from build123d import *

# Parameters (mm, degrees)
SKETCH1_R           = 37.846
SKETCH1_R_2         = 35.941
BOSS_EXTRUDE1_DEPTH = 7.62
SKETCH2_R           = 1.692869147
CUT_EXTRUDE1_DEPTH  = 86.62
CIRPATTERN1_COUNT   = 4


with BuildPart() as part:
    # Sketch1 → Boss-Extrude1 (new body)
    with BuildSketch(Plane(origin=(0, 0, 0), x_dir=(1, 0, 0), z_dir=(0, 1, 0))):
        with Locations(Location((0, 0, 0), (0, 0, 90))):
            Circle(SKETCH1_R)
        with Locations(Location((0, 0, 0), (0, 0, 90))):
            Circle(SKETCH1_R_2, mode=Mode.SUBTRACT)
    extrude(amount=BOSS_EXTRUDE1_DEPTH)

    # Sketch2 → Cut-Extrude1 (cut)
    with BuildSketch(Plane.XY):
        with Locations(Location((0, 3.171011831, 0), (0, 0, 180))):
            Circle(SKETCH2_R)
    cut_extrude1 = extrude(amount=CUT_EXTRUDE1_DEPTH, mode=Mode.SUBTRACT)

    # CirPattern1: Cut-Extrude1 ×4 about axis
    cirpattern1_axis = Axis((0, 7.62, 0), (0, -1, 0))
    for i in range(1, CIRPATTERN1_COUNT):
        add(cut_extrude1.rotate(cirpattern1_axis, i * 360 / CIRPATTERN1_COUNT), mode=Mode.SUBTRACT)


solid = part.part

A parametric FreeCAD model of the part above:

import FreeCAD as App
import Part
import Sketcher

V = App.Vector
Q = App.Units.Quantity

doc = App.newDocument("Part")
body = doc.addObject("PartDesign::Body", "Body")

# Sketch on XZ plane
sketch1 = doc.addObject("Sketcher::SketchObject", "Sketch")
body.addObject(sketch1)
sketch1.AttachmentSupport = (doc.XZ_Plane, [""])
sketch1.MapMode = "FlatFace"
sketch1.addGeometry([
    Part.Circle(V(0, 0, 0), V(0, 0, 1), 38),
    Part.Circle(V(0, 0, 0), V(0, 0, 1), 36),
], False)
sketch1.addConstraint([
    Sketcher.Constraint("Coincident", 0, 3, -1, 1),
    Sketcher.Constraint("Coincident", 1, 3, -1, 1),
    Sketcher.Constraint("Diameter", 0, Q("2.98 in")),
    Sketcher.Constraint("Diameter", 1, Q("2.83 in")),
])
pad1 = doc.addObject("PartDesign::Pad", "Pad")
body.addObject(pad1)
pad1.Profile = sketch1
pad1.Length = Q("0.3 in")
pad1.Reversed = True

# Sketch on XY plane
sketch2 = doc.addObject("Sketcher::SketchObject", "Sketch001")
body.addObject(sketch2)
sketch2.AttachmentSupport = (doc.XY_Plane, [""])
sketch2.MapMode = "FlatFace"
sketch2.addGeometry(Part.Circle(V(0, 3.2, 0), V(0, 0, 1), 1.7), False)
sketch2.addConstraint([
    Sketcher.Constraint("PointOnObject", 0, 3, -2),
    Sketcher.Constraint("Diameter", 0, 3.385738),
    Sketcher.Constraint("DistanceY", -1, 1, 0, 3, 3.171012),
])
pocket1 = doc.addObject("PartDesign::Pocket", "Pocket")
body.addObject(pocket1)
pocket1.Profile = sketch2
pocket1.Length = 86.62
pocket1.Reversed = True
doc.recompute()

polarpattern = doc.addObject("PartDesign::PolarPattern", "PolarPattern")
body.addObject(polarpattern)
polarpattern.Originals = [pocket1]
polarpattern.Axis = (doc.Y_Axis, [""])
polarpattern.Angle = 360
polarpattern.Occurrences = 4
body.Tip = polarpattern

doc.recompute()
